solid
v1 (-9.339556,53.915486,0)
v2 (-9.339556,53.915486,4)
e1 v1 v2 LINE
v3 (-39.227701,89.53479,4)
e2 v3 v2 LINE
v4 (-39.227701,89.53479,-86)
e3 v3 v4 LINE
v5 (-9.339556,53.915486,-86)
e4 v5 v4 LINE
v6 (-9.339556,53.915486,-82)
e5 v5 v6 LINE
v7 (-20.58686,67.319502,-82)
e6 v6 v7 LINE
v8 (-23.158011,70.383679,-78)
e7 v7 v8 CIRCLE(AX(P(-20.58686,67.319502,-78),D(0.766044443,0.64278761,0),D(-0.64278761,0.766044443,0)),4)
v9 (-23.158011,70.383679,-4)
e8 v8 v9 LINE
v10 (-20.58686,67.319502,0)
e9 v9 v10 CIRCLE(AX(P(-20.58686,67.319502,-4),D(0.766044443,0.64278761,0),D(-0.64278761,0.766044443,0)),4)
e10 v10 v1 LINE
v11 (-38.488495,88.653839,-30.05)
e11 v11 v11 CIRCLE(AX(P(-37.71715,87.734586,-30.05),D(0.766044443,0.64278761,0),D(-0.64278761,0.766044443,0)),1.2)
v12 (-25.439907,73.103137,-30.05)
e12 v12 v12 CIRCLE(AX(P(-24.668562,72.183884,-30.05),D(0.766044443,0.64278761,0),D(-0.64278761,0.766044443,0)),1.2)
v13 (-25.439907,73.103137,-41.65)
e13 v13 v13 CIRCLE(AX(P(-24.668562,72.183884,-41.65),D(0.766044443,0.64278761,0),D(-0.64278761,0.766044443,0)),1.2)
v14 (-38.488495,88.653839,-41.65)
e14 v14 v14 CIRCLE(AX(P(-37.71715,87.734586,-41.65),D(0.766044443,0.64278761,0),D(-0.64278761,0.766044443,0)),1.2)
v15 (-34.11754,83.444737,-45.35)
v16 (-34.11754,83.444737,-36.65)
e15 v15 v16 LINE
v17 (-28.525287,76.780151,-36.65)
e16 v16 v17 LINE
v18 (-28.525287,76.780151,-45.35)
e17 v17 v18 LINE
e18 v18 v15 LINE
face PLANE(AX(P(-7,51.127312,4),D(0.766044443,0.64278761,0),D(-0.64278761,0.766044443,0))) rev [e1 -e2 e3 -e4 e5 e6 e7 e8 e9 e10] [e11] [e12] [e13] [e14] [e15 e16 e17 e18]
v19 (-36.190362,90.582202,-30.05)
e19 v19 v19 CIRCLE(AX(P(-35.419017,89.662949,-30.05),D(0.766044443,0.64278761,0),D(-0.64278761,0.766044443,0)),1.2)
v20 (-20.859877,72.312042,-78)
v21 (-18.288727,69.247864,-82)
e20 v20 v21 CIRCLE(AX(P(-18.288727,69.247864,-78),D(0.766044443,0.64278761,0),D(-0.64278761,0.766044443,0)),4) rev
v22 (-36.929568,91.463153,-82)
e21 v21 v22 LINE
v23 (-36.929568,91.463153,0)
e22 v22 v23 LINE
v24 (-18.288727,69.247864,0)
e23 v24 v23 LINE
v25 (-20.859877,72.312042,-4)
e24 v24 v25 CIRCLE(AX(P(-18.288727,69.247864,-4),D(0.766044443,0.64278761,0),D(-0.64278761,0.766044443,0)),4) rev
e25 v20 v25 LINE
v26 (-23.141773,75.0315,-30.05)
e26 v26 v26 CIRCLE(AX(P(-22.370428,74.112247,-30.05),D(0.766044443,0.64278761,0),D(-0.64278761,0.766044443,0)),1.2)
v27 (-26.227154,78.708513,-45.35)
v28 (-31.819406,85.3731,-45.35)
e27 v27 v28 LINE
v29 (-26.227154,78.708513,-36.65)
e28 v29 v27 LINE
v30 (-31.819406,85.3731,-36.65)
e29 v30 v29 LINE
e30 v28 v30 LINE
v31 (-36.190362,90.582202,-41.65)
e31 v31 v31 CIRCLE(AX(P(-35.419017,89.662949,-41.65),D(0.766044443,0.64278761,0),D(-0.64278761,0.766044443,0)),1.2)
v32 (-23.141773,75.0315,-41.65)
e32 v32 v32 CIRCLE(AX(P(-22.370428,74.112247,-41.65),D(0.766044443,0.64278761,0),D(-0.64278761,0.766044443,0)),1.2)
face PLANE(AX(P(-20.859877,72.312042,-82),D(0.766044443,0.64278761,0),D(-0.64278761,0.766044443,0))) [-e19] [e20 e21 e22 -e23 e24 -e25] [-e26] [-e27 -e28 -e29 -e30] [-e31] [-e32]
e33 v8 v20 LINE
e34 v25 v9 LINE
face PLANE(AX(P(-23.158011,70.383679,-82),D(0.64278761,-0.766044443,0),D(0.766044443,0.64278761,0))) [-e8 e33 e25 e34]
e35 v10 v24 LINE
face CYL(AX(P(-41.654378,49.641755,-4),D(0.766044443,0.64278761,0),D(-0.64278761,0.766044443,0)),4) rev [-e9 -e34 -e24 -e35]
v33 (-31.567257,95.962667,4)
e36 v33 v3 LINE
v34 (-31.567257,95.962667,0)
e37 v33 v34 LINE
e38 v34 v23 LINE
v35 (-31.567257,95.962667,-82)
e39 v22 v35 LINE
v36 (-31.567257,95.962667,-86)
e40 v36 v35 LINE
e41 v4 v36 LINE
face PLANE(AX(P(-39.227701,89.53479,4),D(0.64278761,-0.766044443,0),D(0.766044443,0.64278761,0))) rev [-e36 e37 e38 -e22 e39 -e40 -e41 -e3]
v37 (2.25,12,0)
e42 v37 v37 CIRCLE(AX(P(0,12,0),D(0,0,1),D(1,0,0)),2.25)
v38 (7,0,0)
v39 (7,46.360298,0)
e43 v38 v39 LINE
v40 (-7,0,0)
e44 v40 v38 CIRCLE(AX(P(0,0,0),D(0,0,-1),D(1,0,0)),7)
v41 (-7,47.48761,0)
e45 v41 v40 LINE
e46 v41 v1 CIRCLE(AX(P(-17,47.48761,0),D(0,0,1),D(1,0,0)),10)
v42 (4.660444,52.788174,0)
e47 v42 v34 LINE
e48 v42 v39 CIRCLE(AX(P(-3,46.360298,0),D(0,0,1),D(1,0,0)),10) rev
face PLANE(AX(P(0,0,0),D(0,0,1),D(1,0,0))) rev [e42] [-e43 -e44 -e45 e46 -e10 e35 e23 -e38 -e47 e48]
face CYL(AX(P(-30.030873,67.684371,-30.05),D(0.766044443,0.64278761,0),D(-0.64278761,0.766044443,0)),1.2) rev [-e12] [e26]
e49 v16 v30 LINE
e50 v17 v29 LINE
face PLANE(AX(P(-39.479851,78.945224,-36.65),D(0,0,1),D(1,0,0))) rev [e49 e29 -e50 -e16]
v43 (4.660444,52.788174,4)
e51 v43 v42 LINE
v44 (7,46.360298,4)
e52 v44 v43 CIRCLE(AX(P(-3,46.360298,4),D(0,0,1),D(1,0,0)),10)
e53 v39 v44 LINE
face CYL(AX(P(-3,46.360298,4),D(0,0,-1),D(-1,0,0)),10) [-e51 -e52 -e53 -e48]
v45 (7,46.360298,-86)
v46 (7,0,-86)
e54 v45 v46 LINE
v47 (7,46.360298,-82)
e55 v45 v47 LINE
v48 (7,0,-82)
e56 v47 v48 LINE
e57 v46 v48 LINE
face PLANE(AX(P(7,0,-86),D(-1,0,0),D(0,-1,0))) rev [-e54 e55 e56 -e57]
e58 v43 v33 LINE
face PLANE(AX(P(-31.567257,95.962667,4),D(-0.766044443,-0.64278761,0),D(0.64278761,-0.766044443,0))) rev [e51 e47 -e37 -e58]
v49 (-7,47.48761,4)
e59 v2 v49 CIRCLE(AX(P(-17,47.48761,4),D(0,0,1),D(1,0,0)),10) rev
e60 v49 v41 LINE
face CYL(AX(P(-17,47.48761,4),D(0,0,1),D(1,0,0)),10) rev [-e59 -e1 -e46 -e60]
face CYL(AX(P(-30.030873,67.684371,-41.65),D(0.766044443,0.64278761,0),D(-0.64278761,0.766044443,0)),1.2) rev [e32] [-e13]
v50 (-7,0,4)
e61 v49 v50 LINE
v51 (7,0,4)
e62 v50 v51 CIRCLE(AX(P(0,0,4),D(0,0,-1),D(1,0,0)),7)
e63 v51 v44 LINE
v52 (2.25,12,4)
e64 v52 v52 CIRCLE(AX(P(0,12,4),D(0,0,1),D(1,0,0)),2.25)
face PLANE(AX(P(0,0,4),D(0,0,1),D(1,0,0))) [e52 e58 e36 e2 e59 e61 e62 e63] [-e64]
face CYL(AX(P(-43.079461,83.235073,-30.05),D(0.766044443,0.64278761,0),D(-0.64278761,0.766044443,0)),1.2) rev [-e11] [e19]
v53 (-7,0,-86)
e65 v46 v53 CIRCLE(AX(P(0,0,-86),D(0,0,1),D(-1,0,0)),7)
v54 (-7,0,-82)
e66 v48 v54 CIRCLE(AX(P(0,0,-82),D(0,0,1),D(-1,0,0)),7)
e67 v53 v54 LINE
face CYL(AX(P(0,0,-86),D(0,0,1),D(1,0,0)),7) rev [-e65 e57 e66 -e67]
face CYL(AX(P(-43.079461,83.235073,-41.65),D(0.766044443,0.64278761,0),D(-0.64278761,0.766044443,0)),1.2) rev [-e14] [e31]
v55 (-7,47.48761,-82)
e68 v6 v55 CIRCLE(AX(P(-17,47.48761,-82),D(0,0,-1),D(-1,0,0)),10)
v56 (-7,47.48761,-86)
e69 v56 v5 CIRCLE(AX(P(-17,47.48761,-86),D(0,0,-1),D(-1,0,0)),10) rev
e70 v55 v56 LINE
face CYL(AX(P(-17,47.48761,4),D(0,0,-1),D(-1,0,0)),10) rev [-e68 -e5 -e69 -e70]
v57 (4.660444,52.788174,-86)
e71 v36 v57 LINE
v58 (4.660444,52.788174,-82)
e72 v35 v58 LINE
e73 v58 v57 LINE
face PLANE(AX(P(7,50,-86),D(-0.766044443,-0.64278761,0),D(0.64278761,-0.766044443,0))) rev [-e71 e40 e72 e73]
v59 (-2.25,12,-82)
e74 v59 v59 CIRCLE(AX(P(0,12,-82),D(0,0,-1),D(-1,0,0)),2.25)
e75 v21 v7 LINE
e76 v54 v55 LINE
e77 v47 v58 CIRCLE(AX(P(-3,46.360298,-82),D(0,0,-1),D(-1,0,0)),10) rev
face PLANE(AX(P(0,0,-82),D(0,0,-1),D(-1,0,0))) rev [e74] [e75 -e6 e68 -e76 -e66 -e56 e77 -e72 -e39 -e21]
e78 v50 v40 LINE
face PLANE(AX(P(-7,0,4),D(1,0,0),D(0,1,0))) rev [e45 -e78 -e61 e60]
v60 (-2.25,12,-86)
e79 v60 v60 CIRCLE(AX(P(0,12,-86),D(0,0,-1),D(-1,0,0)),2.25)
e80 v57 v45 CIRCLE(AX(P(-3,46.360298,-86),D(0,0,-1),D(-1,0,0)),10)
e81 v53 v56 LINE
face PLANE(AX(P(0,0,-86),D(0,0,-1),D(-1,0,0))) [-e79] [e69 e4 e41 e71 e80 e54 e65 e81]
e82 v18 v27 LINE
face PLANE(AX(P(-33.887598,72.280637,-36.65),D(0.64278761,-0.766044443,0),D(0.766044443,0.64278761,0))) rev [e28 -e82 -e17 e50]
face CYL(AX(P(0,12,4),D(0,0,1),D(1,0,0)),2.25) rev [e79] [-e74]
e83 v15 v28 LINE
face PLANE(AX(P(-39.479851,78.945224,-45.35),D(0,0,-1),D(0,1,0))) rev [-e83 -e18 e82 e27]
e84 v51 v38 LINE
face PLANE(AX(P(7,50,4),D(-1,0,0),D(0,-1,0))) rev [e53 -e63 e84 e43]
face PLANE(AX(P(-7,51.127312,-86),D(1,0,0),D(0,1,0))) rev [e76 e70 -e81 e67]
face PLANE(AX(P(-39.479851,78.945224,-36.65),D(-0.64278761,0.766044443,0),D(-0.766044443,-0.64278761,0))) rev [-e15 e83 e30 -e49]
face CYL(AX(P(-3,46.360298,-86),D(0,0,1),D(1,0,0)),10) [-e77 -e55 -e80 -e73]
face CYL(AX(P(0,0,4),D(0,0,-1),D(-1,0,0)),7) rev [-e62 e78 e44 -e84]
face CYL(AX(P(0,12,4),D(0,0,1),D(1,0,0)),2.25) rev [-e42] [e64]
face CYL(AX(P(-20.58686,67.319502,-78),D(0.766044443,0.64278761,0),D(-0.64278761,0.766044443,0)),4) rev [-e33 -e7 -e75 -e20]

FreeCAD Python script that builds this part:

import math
import FreeCAD as App
import Part
import Sketcher
from FreeCAD import Vector
Q = App.Units.Quantity


def edges_at(feature, points):
    """Names of the edges that pass closest to the given points."""
    edges = feature.Shape.Edges
    near = lambda p: min(range(len(edges)), key=lambda i: edges[i].distToShape(Part.Vertex(*p))[0])
    return sorted({f"Edge{near(p) + 1}" for p in points})

doc = App.newDocument("Part")
body = doc.addObject("PartDesign::Body", "Body")

sketch1 = doc.addObject("Sketcher::SketchObject", "Sketch")
body.addObject(sketch1)
sketch1.AttachmentSupport = (doc.XY_Plane, [""])
sketch1.MapMode = "FlatFace"
sketch1.addGeometry(Part.LineSegment(Vector(-7, 51, 0), Vector(-7, 0, 0)), False)
sketch1.addGeometry(Part.ArcOfCircle(Part.Circle(Vector(0, 0, 0), Vector(0, 0, 1), 7), math.radians(0), math.radians(180)), False)
sketch1.addGeometry(Part.LineSegment(Vector(7, 0, 0), Vector(7, 50, 0)), False)
sketch1.addGeometry(Part.LineSegment(Vector(7, 50, 0), Vector(-32, 96, 0)), False)
sketch1.addGeometry(Part.LineSegment(Vector(-32, 96, 0), Vector(-39, 90, 0)), False)
sketch1.addGeometry(Part.LineSegment(Vector(-39, 90, 0), Vector(-7, 51, 0)), False)
sketch1.addConstraint(Sketcher.Constraint("Tangent", 0, 2, 1, 2))
sketch1.addConstraint(Sketcher.Constraint("Tangent", 1, 1, 2, 1))
sketch1.addConstraint(Sketcher.Constraint("Coincident", 2, 2, 3, 1))
sketch1.addConstraint(Sketcher.Constraint("Coincident", 3, 2, 4, 1))
sketch1.addConstraint(Sketcher.Constraint("Coincident", 4, 2, 5, 1))
sketch1.addConstraint(Sketcher.Constraint("Coincident", 5, 2, 0, 1))
sketch1.addConstraint(Sketcher.Constraint("Vertical", 0))
sketch1.addConstraint(Sketcher.Constraint("Vertical", 2))
sketch1.addConstraint(Sketcher.Constraint("Coincident", 1, 3, -1, 1))
sketch1.addConstraint(Sketcher.Constraint("Perpendicular", 3, 4))
sketch1.addConstraint(Sketcher.Constraint("Perpendicular", 4, 5))
sketch1.addConstraint(Sketcher.Constraint("Radius", 1, 7.0))
sketch1.addConstraint(Sketcher.Constraint("DistanceY", 2, 1, 2, 2, 50.0))
sketch1.addConstraint(Sketcher.Constraint("Angle", 3, Q("130 deg")))
sketch1.addConstraint(Sketcher.Constraint("Distance", 3, 60.0))
sketch1.addConstraint(Sketcher.Constraint("Distance", 4, 10.0))
pad1 = doc.addObject("PartDesign::Pad", "Pad")
body.addObject(pad1)
pad1.Profile = sketch1
pad1.Length = 4

sketch2 = doc.addObject("Sketcher::SketchObject", "Sketch001")
body.addObject(sketch2)
sketch2.AttachmentSupport = (doc.XY_Plane, [""])
sketch2.MapMode = "FlatFace"
sketch2.addGeometry(Part.LineSegment(Vector(-39.2, 89.5, 0), Vector(-23.2, 70.4, 0)), False)
sketch2.addGeometry(Part.LineSegment(Vector(-23.2, 70.4, 0), Vector(-20.9, 72.3, 0)), False)
sketch2.addGeometry(Part.LineSegment(Vector(-20.9, 72.3, 0), Vector(-36.9, 91.5, 0)), False)
sketch2.addGeometry(Part.LineSegment(Vector(-36.9, 91.5, 0), Vector(-39.2, 89.5, 0)), False)
sketch2.addConstraint(Sketcher.Constraint("Coincident", 0, 2, 1, 1))
sketch2.addConstraint(Sketcher.Constraint("Coincident", 1, 2, 2, 1))
sketch2.addConstraint(Sketcher.Constraint("Coincident", 2, 2, 3, 1))
sketch2.addConstraint(Sketcher.Constraint("Coincident", 3, 2, 0, 1))
sketch2.addConstraint(Sketcher.Constraint("Perpendicular", 0, 1))
sketch2.addConstraint(Sketcher.Constraint("Perpendicular", 1, 2))
sketch2.addConstraint(Sketcher.Constraint("Perpendicular", 2, 3))
sketch2.addConstraint(Sketcher.Constraint("Angle", 0, Q("-50 deg")))
sketch2.addConstraint(Sketcher.Constraint("Distance", 0, 25.0))
sketch2.addConstraint(Sketcher.Constraint("Distance", 1, 3.0))
sketch2.addConstraint(Sketcher.Constraint("DistanceX", 3, 2, -1, 1, 39.227701))
sketch2.addConstraint(Sketcher.Constraint("DistanceY", -1, 1, 0, 2, 70.383679))
pad2 = doc.addObject("PartDesign::Pad", "Pad001")
body.addObject(pad2)
pad2.Profile = sketch2
pad2.Length = 82
pad2.Reversed = True

sketch3 = doc.addObject("Sketcher::SketchObject", "Sketch002")
body.addObject(sketch3)
sketch3.AttachmentSupport = (doc.XY_Plane, [""])
sketch3.MapMode = "FlatFace"
sketch3.AttachmentOffset = App.Placement(Vector(0, 0, -86), App.Rotation())
sketch3.addGeometry(Part.LineSegment(Vector(7, 50, 0), Vector(7, 0, 0)), False)
sketch3.addGeometry(Part.ArcOfCircle(Part.Circle(Vector(0, 0, 0), Vector(0, 0, 1), 7), math.radians(0), math.radians(180)), False)
sketch3.addGeometry(Part.LineSegment(Vector(-7, 0, 0), Vector(-7, 51, 0)), False)
sketch3.addGeometry(Part.LineSegment(Vector(-7, 51, 0), Vector(-39, 90, 0)), False)
sketch3.addGeometry(Part.LineSegment(Vector(-39, 90, 0), Vector(-32, 96, 0)), False)
sketch3.addGeometry(Part.LineSegment(Vector(-32, 96, 0), Vector(7, 50, 0)), False)
sketch3.addConstraint(Sketcher.Constraint("Tangent", 0, 2, 1, 1))
sketch3.addConstraint(Sketcher.Constraint("Tangent", 1, 2, 2, 1))
sketch3.addConstraint(Sketcher.Constraint("Coincident", 2, 2, 3, 1))
sketch3.addConstraint(Sketcher.Constraint("Coincident", 3, 2, 4, 1))
sketch3.addConstraint(Sketcher.Constraint("Coincident", 4, 2, 5, 1))
sketch3.addConstraint(Sketcher.Constraint("Coincident", 5, 2, 0, 1))
sketch3.addConstraint(Sketcher.Constraint("Vertical", 0))
sketch3.addConstraint(Sketcher.Constraint("Vertical", 2))
sketch3.addConstraint(Sketcher.Constraint("Coincident", 1, 3, -1, 1))
sketch3.addConstraint(Sketcher.Constraint("Perpendicular", 3, 4))
sketch3.addConstraint(Sketcher.Constraint("Perpendicular", 4, 5))
sketch3.addConstraint(Sketcher.Constraint("Radius", 1, 7.0))
sketch3.addConstraint(Sketcher.Constraint("DistanceY", 0, 2, 0, 1, 50.0))
sketch3.addConstraint(Sketcher.Constraint("Angle", 3, Q("130 deg")))
sketch3.addConstraint(Sketcher.Constraint("Distance", 4, 10.0))
sketch3.addConstraint(Sketcher.Constraint("Distance", 5, 60.0))
pad3 = doc.addObject("PartDesign::Pad", "Pad002")
body.addObject(pad3)
pad3.Profile = sketch3
pad3.Length = 4

sketch4 = doc.addObject("Sketcher::SketchObject", "Sketch003")
body.addObject(sketch4)
sketch4.AttachmentSupport = (doc.XY_Plane, [""])
sketch4.MapMode = "FlatFace"
sketch4.AttachmentOffset = App.Placement(Vector(0, 0, 4), App.Rotation())
sketch4.addGeometry(Part.Circle(Vector(0, 12, 0), Vector(0, 0, 1), 2.2), False)
sketch4.addConstraint(Sketcher.Constraint("PointOnObject", 0, 3, -2))
sketch4.addConstraint(Sketcher.Constraint("Diameter", 0, 4.5))
sketch4.addConstraint(Sketcher.Constraint("DistanceY", -1, 1, 0, 3, 12.0))
doc.recompute()
hole = doc.addObject("PartDesign::Hole", "Hole")
body.addObject(hole)
hole.Profile = sketch4
hole.ThreadType = "None"
hole.Diameter = 4.5
hole.DepthType = "Dimension"
hole.Depth = 188
hole.DrillPoint = "Angled"
hole.DrillPointAngle = 118

sketch5 = doc.addObject("Sketcher::SketchObject", "Sketch004")
body.addObject(sketch5)
sketch5.Placement = App.Placement(Vector(23.365651, 19.606109, 0), App.Rotation(Vector(0, 0, -1), Vector(-0.64278761, 0.766044443, 0), Vector(0.766044443, 0.64278761, 0), "ZXY"))
sketch5.addGeometry(Part.Circle(Vector(30.1, 91.5, 0), Vector(0, 0, 1), 1.2), False)
sketch5.addGeometry(Part.Circle(Vector(41.6, 91.5, 0), Vector(0, 0, 1), 1.2), False)
sketch5.addGeometry(Part.Circle(Vector(30.1, 71.2, 0), Vector(0, 0, 1), 1.2), False)
sketch5.addGeometry(Part.Circle(Vector(41.6, 71.2, 0), Vector(0, 0, 1), 1.2), False)
sketch5.addGeometry(Part.LineSegment(Vector(36.6, 85.9, 0), Vector(36.6, 77.2, 0)), False)
sketch5.addGeometry(Part.LineSegment(Vector(36.6, 77.2, 0), Vector(45.4, 77.2, 0)), False)
sketch5.addGeometry(Part.LineSegment(Vector(45.4, 77.2, 0), Vector(45.4, 85.9, 0)), False)
sketch5.addGeometry(Part.LineSegment(Vector(45.4, 85.9, 0), Vector(36.6, 85.9, 0)), False)
sketch5.addConstraint(Sketcher.Constraint("Coincident", 4, 2, 5, 1))
sketch5.addConstraint(Sketcher.Constraint("Coincident", 5, 2, 6, 1))
sketch5.addConstraint(Sketcher.Constraint("Coincident", 6, 2, 7, 1))
sketch5.addConstraint(Sketcher.Constraint("Coincident", 7, 2, 4, 1))
sketch5.addConstraint(Sketcher.Constraint("Vertical", 4))
sketch5.addConstraint(Sketcher.Constraint("Horizontal", 5))
sketch5.addConstraint(Sketcher.Constraint("Vertical", 6))
sketch5.addConstraint(Sketcher.Constraint("Horizontal", 7))
sketch5.addConstraint(Sketcher.Constraint("Equal", 0, 1))
sketch5.addConstraint(Sketcher.Constraint("Equal", 1, 2))
sketch5.addConstraint(Sketcher.Constraint("Equal", 2, 3))
sketch5.addConstraint(Sketcher.Constraint("Horizontal", 0, 3, 1, 3))
sketch5.addConstraint(Sketcher.Constraint("Horizontal", 2, 3, 3, 3))
sketch5.addConstraint(Sketcher.Constraint("Vertical", 0, 3, 2, 3))
sketch5.addConstraint(Sketcher.Constraint("Vertical", 1, 3, 3, 3))
sketch5.addConstraint(Sketcher.Constraint("Equal", 7, 4))
sketch5.addConstraint(Sketcher.Constraint("Diameter", 0, 2.4))
sketch5.addConstraint(Sketcher.Constraint("DistanceX", 5, 1, 5, 2, 8.7))
sketch5.addConstraint(Sketcher.Constraint("DistanceX", 4, 2, 3, 3, 5.0))
sketch5.addConstraint(Sketcher.Constraint("DistanceY", 3, 3, 4, 2, 6.0))
sketch5.addConstraint(Sketcher.Constraint("DistanceX", 0, 3, 1, 3, 11.6))
sketch5.addConstraint(Sketcher.Constraint("DistanceY", 2, 3, 0, 3, 20.3))
sketch5.addConstraint(Sketcher.Constraint("DistanceX", -1, 1, 0, 3, 30.05))
sketch5.addConstraint(Sketcher.Constraint("DistanceY", -1, 1, 0, 3, 91.452709))
pocket1 = doc.addObject("PartDesign::Pocket", "Pocket")
body.addObject(pocket1)
pocket1.Profile = sketch5
pocket1.Length = 10
doc.recompute()

fillet = doc.addObject("PartDesign::Fillet", "Fillet")
body.addObject(fillet)
fillet.Base = (pocket1, edges_at(pocket1, [
    (-7, 51.127, 2),
    (7, 50, 2),
    (-7, 51.127, -84),
    (7, 50, -84),
]))
fillet.Radius = 10
doc.recompute()

fillet2 = doc.addObject("PartDesign::Fillet", "Fillet001")
body.addObject(fillet2)
fillet2.Base = (fillet, edges_at(fillet, [(-22.009, 71.348, -82), (-22.009, 71.348, 0)]))
fillet2.Radius = 4

doc.recompute()
